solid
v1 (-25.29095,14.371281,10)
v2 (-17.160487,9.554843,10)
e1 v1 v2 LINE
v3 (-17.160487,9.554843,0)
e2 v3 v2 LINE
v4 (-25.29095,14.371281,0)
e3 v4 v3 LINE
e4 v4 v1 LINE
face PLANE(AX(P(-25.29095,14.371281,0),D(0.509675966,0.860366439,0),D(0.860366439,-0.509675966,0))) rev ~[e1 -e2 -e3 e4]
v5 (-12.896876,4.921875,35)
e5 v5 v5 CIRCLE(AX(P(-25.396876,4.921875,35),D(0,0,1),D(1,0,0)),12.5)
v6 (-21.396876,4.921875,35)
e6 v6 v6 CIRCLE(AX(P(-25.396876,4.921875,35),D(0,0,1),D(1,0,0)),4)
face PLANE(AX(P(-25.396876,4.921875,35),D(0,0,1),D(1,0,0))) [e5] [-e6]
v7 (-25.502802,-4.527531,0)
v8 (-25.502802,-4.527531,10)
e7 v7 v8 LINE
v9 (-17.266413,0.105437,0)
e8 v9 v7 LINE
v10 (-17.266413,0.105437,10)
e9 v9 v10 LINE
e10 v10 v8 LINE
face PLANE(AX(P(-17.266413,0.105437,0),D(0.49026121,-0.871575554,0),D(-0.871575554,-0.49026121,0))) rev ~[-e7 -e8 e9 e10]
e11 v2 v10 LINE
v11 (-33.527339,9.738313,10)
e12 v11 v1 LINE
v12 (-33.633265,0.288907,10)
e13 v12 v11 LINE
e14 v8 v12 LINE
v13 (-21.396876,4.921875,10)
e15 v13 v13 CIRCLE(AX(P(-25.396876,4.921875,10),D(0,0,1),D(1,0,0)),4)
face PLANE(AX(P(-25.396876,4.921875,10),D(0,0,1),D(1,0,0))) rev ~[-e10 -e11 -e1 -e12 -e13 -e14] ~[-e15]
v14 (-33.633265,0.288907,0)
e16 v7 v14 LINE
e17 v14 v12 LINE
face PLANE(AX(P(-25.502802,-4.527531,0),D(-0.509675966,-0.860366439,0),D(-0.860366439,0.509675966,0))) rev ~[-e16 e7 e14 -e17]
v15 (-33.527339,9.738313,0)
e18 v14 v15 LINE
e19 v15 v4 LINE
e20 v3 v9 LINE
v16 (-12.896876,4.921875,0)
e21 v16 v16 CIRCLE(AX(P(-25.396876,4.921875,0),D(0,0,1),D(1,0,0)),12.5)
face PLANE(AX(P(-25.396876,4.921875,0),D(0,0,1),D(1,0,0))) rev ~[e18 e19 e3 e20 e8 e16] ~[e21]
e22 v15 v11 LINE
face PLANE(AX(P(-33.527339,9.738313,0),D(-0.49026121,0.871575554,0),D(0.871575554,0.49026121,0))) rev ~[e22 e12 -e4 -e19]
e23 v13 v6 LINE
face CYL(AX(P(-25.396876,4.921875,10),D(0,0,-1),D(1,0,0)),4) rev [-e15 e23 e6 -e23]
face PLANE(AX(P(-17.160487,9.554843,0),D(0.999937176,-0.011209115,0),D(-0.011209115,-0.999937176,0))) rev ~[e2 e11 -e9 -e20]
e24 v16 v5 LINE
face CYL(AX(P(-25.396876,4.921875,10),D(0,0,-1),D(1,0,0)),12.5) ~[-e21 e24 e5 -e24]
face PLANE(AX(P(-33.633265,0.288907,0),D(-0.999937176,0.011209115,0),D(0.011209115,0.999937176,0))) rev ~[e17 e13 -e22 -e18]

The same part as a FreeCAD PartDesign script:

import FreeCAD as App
import Part
import Sketcher
from FreeCAD import Vector
Q = App.Units.Quantity

doc = App.newDocument("Part")
params = doc.addObject("Spreadsheet::Sheet", "Params")
for row, (alias, value) in enumerate([
    ("sketch1_diameter", "25 mm"),
    ("sketch1_length", "9.45 mm"),
    ("pad1_length", "10 mm"),
    ("sketch2_diameter", "25 mm"),
    ("sketch2_diameter2", "8 mm"),
    ("pad2_length", "25 mm"),
], start=1):
    params.set(f"A{row}", alias)
    params.set(f"B{row}", "=" + value)
    params.setAlias(f"B{row}", alias)

body = doc.addObject("PartDesign::Body", "Body")

# Sketch on XY plane
sketch1 = doc.addObject("Sketcher::SketchObject", "Sketch")
body.addObject(sketch1)
sketch1.AttachmentSupport = (doc.XY_Plane, [""])
sketch1.MapMode = "FlatFace"
sketch1.addGeometry(Part.Circle(Vector(-25.396876, 4.921875, 0), Vector(0, 0, 1), 12.5), False)
sketch1.addGeometry(Part.LineSegment(Vector(-25.29095, 14.371281, 0), Vector(-17.160487, 9.554843, 0)), False)
sketch1.addGeometry(Part.LineSegment(Vector(-17.160487, 9.554843, 0), Vector(-17.266413, 0.105437, 0)), False)
sketch1.addGeometry(Part.LineSegment(Vector(-17.266413, 0.105437, 0), Vector(-25.502802, -4.527531, 0)), False)
sketch1.addGeometry(Part.LineSegment(Vector(-25.502802, -4.527531, 0), Vector(-33.633265, 0.288907, 0)), False)
sketch1.addGeometry(Part.LineSegment(Vector(-33.633265, 0.288907, 0), Vector(-33.527339, 9.738313, 0)), False)
sketch1.addGeometry(Part.LineSegment(Vector(-33.527339, 9.738313, 0), Vector(-25.29095, 14.371281, 0)), False)
sketch1.addConstraint(Sketcher.Constraint("Coincident", 1, 2, 2, 1))
sketch1.addConstraint(Sketcher.Constraint("Coincident", 2, 2, 3, 1))
sketch1.addConstraint(Sketcher.Constraint("Coincident", 3, 2, 4, 1))
sketch1.addConstraint(Sketcher.Constraint("Coincident", 4, 2, 5, 1))
sketch1.addConstraint(Sketcher.Constraint("Coincident", 5, 2, 6, 1))
sketch1.addConstraint(Sketcher.Constraint("Coincident", 6, 2, 1, 1))
sketch1.addConstraint(Sketcher.Constraint("Parallel", 1, 4))
sketch1.addConstraint(Sketcher.Constraint("Parallel", 2, 5))
sketch1.addConstraint(Sketcher.Constraint("Parallel", 3, 6))
sketch1.addConstraint(Sketcher.Constraint("Equal", 1, 2))
sketch1.addConstraint(Sketcher.Constraint("Equal", 2, 3))
sketch1.addConstraint(Sketcher.Constraint("Equal", 3, 4))
sketch1.addConstraint(Sketcher.Constraint("Diameter", 0, Q("25 mm")))
sketch1.addConstraint(Sketcher.Constraint("Distance", 1, Q("9.45 mm")))
sketch1.addConstraint(Sketcher.Constraint("DistanceY", 3, 2, -1, 1, Q("4.527531 mm")))
sketch1.addConstraint(Sketcher.Constraint("DistanceX", 5, 2, -1, 1, Q("33.527339 mm")))
sketch1.addConstraint(Sketcher.Constraint("DistanceX", 6, 2, -1, 1, Q("25.29095 mm")))
sketch1.addConstraint(Sketcher.Constraint("DistanceY", -1, 1, 6, 2, Q("14.371281 mm")))
sketch1.addConstraint(Sketcher.Constraint("DistanceX", 0, 3, 1, 2, Q("8.236389 mm")))
sketch1.addConstraint(Sketcher.Constraint("DistanceY", 0, 3, 1, 2, Q("4.632968 mm")))
sketch1.addConstraint(Sketcher.Constraint("DistanceX", 4, 2, 0, 3, Q("8.236389 mm")))
sketch1.setExpression("Constraints[12]", "Params.sketch1_diameter")
sketch1.setExpression("Constraints[13]", "Params.sketch1_length")
pad1 = doc.addObject("PartDesign::Pad", "Pad")
body.addObject(pad1)
pad1.Profile = sketch1
pad1.setExpression("Length", "Params.pad1_length")

# Sketch on XY plane
sketch2 = doc.addObject("Sketcher::SketchObject", "Sketch001")
body.addObject(sketch2)
sketch2.AttachmentSupport = (doc.XY_Plane, [""])
sketch2.MapMode = "FlatFace"
sketch2.AttachmentOffset = App.Placement(Vector(0, 0, 10), App.Rotation())
sketch2.addGeometry(Part.Circle(Vector(-25.396876, 4.921875, 0), Vector(0, 0, 1), 12.5), False)
sketch2.addGeometry(Part.Circle(Vector(-25.396876, 4.921875, 0), Vector(0, 0, 1), 4), False)
sketch2.addConstraint(Sketcher.Constraint("Coincident", 1, 3, 0, 3))
sketch2.addConstraint(Sketcher.Constraint("Diameter", 0, Q("25 mm")))
sketch2.addConstraint(Sketcher.Constraint("Diameter", 1, Q("8 mm")))
sketch2.addConstraint(Sketcher.Constraint("DistanceX", 0, 3, -1, 1, Q("25.396876 mm")))
sketch2.addConstraint(Sketcher.Constraint("DistanceY", -1, 1, 0, 3, Q("4.921875 mm")))
sketch2.setExpression("Constraints[1]", "Params.sketch2_diameter")
sketch2.setExpression("Constraints[2]", "Params.sketch2_diameter2")
pad2 = doc.addObject("PartDesign::Pad", "Pad001")
body.addObject(pad2)
pad2.Profile = sketch2
pad2.setExpression("Length", "Params.pad2_length")

doc.recompute()
